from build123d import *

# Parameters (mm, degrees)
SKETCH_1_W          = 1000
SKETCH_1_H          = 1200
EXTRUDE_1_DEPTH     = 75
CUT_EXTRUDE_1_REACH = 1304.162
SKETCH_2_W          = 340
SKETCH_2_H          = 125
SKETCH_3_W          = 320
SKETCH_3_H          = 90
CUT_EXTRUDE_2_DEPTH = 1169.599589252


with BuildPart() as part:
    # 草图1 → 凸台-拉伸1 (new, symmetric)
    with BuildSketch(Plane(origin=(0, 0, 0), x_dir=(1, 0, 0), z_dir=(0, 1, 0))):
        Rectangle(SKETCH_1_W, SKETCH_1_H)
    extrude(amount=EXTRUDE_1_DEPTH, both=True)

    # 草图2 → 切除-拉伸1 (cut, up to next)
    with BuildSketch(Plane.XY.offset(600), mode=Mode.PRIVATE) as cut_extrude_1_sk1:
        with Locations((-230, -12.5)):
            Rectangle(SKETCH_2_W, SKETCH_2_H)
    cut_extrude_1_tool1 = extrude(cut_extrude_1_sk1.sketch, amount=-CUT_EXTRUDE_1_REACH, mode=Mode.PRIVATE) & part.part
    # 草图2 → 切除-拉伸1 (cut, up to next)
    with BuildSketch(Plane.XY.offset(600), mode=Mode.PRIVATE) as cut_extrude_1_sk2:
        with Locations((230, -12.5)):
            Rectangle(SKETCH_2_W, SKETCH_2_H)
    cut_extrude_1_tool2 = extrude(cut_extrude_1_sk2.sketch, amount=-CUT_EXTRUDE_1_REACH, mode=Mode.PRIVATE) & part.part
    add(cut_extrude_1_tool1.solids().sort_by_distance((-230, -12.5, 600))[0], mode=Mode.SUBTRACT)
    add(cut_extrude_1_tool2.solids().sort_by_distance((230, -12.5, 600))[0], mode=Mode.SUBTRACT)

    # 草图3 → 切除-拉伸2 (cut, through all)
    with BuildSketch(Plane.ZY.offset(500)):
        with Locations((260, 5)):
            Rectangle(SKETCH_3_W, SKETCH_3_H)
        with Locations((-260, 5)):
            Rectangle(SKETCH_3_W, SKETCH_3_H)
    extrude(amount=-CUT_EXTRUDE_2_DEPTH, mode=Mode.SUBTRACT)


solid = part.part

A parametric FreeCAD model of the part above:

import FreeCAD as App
import Part
import Sketcher

V = App.Vector

doc = App.newDocument("Part")
params = doc.addObject("Spreadsheet::Sheet", "Params")
for row, (alias, value) in enumerate([
    ("sketch1_width", "1000 mm"),
    ("sketch1_height", "1200 mm"),
    ("pad1_length", "150 mm"),
    ("sketch2_width", "340 mm"),
    ("sketch2_height", "125 mm"),
    ("sketch3_width", "340 mm"),
    ("sketch3_height", "125 mm"),
    ("sketch4_width", "90 mm"),
    ("sketch4_height", "320 mm"),
], start=1):
    params.set(f"A{row}", alias)
    params.set(f"B{row}", "=" + value)
    params.setAlias(f"B{row}", alias)

body = doc.addObject("PartDesign::Body", "Body")

# Sketch on XZ plane
sketch1 = body.newObject("Sketcher::SketchObject", "Sketch")
sketch1.AttachmentSupport = (doc.getObject("XZ_Plane"), [""])
sketch1.MapMode = "FlatFace"
sketch1.addGeometry([
    Part.LineSegment(V(-500, -600, 0), V(-500, 600, 0)),
    Part.LineSegment(V(-500, 600, 0), V(500, 600, 0)),
    Part.LineSegment(V(500, 600, 0), V(500, -600, 0)),
    Part.LineSegment(V(500, -600, 0), V(-500, -600, 0)),
], False)
sketch1.addConstraint([
    Sketcher.Constraint("Coincident", 0, 2, 1, 1),
    Sketcher.Constraint("Coincident", 1, 2, 2, 1),
    Sketcher.Constraint("Coincident", 2, 2, 3, 1),
    Sketcher.Constraint("Coincident", 3, 2, 0, 1),
    Sketcher.Constraint("Vertical", 0),
    Sketcher.Constraint("Horizontal", 1),
    Sketcher.Constraint("Vertical", 2),
    Sketcher.Constraint("Horizontal", 3),
    Sketcher.Constraint("Symmetric", 0, 2, 2, 2, -1, 1),
    Sketcher.Constraint("DistanceX", 1, 1, 1, 2, 1000.0),
    Sketcher.Constraint("DistanceY", 0, 1, 0, 2, 1200.0),
])
sketch1.setExpression("Constraints[9]", "Params.sketch1_width")
sketch1.setExpression("Constraints[10]", "Params.sketch1_height")
pad1 = body.newObject("PartDesign::Pad", "Pad")
pad1.Profile = sketch1
pad1.setExpression("Length", "Params.pad1_length")
pad1.Midplane = True

# Sketch on XY plane
sketch2 = body.newObject("Sketcher::SketchObject", "Sketch001")
sketch2.AttachmentSupport = (doc.getObject("XY_Plane"), [""])
sketch2.MapMode = "FlatFace"
sketch2.AttachmentOffset = App.Placement(V(0, 0, 600), App.Rotation())
sketch2.addGeometry([
    Part.LineSegment(V(-400, 50, 0), V(-400, -75, 0)),
    Part.LineSegment(V(-400, -75, 0), V(-60, -75, 0)),
    Part.LineSegment(V(-60, -75, 0), V(-60, 50, 0)),
    Part.LineSegment(V(-60, 50, 0), V(-400, 50, 0)),
], False)
sketch2.addConstraint([
    Sketcher.Constraint("Coincident", 0, 2, 1, 1),
    Sketcher.Constraint("Coincident", 1, 2, 2, 1),
    Sketcher.Constraint("Coincident", 2, 2, 3, 1),
    Sketcher.Constraint("Coincident", 3, 2, 0, 1),
    Sketcher.Constraint("Vertical", 0),
    Sketcher.Constraint("Horizontal", 1),
    Sketcher.Constraint("Vertical", 2),
    Sketcher.Constraint("Horizontal", 3),
    Sketcher.Constraint("DistanceX", 1, 1, 1, 2, 340.0),
    Sketcher.Constraint("DistanceY", 0, 2, 0, 1, 125.0),
    Sketcher.Constraint("DistanceX", 0, 2, -1, 1, 400.0),
    Sketcher.Constraint("DistanceY", 0, 2, -1, 1, 75.0),
])
sketch2.setExpression("Constraints[8]", "Params.sketch2_width")
sketch2.setExpression("Constraints[9]", "Params.sketch2_height")
pocket1 = body.newObject("PartDesign::Pocket", "Pocket")
pocket1.Profile = sketch2
pocket1.Type = "UpToFirst"

# Sketch on XY plane
sketch3 = body.newObject("Sketcher::SketchObject", "Sketch002")
sketch3.AttachmentSupport = (doc.getObject("XY_Plane"), [""])
sketch3.MapMode = "FlatFace"
sketch3.AttachmentOffset = App.Placement(V(0, 0, 600), App.Rotation())
sketch3.addGeometry([
    Part.LineSegment(V(60, 50, 0), V(60, -75, 0)),
    Part.LineSegment(V(60, -75, 0), V(400, -75, 0)),
    Part.LineSegment(V(400, -75, 0), V(400, 50, 0)),
    Part.LineSegment(V(400, 50, 0), V(60, 50, 0)),
], False)
sketch3.addConstraint([
    Sketcher.Constraint("Coincident", 0, 2, 1, 1),
    Sketcher.Constraint("Coincident", 1, 2, 2, 1),
    Sketcher.Constraint("Coincident", 2, 2, 3, 1),
    Sketcher.Constraint("Coincident", 3, 2, 0, 1),
    Sketcher.Constraint("Vertical", 0),
    Sketcher.Constraint("Horizontal", 1),
    Sketcher.Constraint("Vertical", 2),
    Sketcher.Constraint("Horizontal", 3),
    Sketcher.Constraint("DistanceX", 1, 1, 1, 2, 340.0),
    Sketcher.Constraint("DistanceY", 0, 2, 0, 1, 125.0),
    Sketcher.Constraint("DistanceX", -1, 1, 0, 2, 60.0),
    Sketcher.Constraint("DistanceY", 0, 2, -1, 1, 75.0),
])
sketch3.setExpression("Constraints[8]", "Params.sketch3_width")
sketch3.setExpression("Constraints[9]", "Params.sketch3_height")
pocket2 = body.newObject("PartDesign::Pocket", "Pocket001")
pocket2.Profile = sketch3
pocket2.Type = "UpToFirst"

# Sketch on YZ plane
sketch4 = body.newObject("Sketcher::SketchObject", "Sketch003")
sketch4.AttachmentSupport = (doc.getObject("YZ_Plane"), [""])
sketch4.MapMode = "FlatFace"
sketch4.AttachmentOffset = App.Placement(V(0, 0, -500), App.Rotation())
sketch4.addGeometry([
    Part.LineSegment(V(50, 100, 0), V(-40, 100, 0)),  # 0
    Part.LineSegment(V(-40, 100, 0), V(-40, 420, 0)),  # 1
    Part.LineSegment(V(-40, 420, 0), V(50, 420, 0)),  # 2
    Part.LineSegment(V(50, 420, 0), V(50, 100, 0)),  # 3
    Part.LineSegment(V(50, -420, 0), V(-40, -420, 0)),  # 4
    Part.LineSegment(V(-40, -420, 0), V(-40, -100, 0)),  # 5
    Part.LineSegment(V(-40, -100, 0), V(50, -100, 0)),  # 6
    Part.LineSegment(V(50, -100, 0), V(50, -420, 0)),  # 7
], False)
sketch4.addConstraint([
    Sketcher.Constraint("Coincident", 0, 2, 1, 1),
    Sketcher.Constraint("Coincident", 1, 2, 2, 1),
    Sketcher.Constraint("Coincident", 2, 2, 3, 1),
    Sketcher.Constraint("Coincident", 3, 2, 0, 1),
    Sketcher.Constraint("Coincident", 4, 2, 5, 1),
    Sketcher.Constraint("Coincident", 5, 2, 6, 1),
    Sketcher.Constraint("Coincident", 6, 2, 7, 1),
    Sketcher.Constraint("Coincident", 7, 2, 4, 1),
    Sketcher.Constraint("Horizontal", 0),
    Sketcher.Constraint("Vertical", 1),
    Sketcher.Constraint("Horizontal", 2),
    Sketcher.Constraint("Vertical", 3),
    Sketcher.Constraint("Horizontal", 4),
    Sketcher.Constraint("Vertical", 5),
    Sketcher.Constraint("Horizontal", 6),
    Sketcher.Constraint("Vertical", 7),
    Sketcher.Constraint("Symmetric", 1, 2, 4, 2, -1),
    Sketcher.Constraint("Symmetric", 3, 2, 6, 2, -1),
    Sketcher.Constraint("DistanceX", 0, 2, 0, 1, 90.0),
    Sketcher.Constraint("DistanceY", 1, 1, 1, 2, 320.0),
    Sketcher.Constraint("DistanceX", 0, 2, -1, 1, 40.0),
    Sketcher.Constraint("DistanceY", -1, 1, 0, 2, 100.0),
])
sketch4.setExpression("Constraints[18]", "Params.sketch4_width")
sketch4.setExpression("Constraints[19]", "Params.sketch4_height")
pocket3 = body.newObject("PartDesign::Pocket", "Pocket002")
pocket3.Profile = sketch4
pocket3.Type = "ThroughAll"
pocket3.Reversed = True

doc.recompute()
